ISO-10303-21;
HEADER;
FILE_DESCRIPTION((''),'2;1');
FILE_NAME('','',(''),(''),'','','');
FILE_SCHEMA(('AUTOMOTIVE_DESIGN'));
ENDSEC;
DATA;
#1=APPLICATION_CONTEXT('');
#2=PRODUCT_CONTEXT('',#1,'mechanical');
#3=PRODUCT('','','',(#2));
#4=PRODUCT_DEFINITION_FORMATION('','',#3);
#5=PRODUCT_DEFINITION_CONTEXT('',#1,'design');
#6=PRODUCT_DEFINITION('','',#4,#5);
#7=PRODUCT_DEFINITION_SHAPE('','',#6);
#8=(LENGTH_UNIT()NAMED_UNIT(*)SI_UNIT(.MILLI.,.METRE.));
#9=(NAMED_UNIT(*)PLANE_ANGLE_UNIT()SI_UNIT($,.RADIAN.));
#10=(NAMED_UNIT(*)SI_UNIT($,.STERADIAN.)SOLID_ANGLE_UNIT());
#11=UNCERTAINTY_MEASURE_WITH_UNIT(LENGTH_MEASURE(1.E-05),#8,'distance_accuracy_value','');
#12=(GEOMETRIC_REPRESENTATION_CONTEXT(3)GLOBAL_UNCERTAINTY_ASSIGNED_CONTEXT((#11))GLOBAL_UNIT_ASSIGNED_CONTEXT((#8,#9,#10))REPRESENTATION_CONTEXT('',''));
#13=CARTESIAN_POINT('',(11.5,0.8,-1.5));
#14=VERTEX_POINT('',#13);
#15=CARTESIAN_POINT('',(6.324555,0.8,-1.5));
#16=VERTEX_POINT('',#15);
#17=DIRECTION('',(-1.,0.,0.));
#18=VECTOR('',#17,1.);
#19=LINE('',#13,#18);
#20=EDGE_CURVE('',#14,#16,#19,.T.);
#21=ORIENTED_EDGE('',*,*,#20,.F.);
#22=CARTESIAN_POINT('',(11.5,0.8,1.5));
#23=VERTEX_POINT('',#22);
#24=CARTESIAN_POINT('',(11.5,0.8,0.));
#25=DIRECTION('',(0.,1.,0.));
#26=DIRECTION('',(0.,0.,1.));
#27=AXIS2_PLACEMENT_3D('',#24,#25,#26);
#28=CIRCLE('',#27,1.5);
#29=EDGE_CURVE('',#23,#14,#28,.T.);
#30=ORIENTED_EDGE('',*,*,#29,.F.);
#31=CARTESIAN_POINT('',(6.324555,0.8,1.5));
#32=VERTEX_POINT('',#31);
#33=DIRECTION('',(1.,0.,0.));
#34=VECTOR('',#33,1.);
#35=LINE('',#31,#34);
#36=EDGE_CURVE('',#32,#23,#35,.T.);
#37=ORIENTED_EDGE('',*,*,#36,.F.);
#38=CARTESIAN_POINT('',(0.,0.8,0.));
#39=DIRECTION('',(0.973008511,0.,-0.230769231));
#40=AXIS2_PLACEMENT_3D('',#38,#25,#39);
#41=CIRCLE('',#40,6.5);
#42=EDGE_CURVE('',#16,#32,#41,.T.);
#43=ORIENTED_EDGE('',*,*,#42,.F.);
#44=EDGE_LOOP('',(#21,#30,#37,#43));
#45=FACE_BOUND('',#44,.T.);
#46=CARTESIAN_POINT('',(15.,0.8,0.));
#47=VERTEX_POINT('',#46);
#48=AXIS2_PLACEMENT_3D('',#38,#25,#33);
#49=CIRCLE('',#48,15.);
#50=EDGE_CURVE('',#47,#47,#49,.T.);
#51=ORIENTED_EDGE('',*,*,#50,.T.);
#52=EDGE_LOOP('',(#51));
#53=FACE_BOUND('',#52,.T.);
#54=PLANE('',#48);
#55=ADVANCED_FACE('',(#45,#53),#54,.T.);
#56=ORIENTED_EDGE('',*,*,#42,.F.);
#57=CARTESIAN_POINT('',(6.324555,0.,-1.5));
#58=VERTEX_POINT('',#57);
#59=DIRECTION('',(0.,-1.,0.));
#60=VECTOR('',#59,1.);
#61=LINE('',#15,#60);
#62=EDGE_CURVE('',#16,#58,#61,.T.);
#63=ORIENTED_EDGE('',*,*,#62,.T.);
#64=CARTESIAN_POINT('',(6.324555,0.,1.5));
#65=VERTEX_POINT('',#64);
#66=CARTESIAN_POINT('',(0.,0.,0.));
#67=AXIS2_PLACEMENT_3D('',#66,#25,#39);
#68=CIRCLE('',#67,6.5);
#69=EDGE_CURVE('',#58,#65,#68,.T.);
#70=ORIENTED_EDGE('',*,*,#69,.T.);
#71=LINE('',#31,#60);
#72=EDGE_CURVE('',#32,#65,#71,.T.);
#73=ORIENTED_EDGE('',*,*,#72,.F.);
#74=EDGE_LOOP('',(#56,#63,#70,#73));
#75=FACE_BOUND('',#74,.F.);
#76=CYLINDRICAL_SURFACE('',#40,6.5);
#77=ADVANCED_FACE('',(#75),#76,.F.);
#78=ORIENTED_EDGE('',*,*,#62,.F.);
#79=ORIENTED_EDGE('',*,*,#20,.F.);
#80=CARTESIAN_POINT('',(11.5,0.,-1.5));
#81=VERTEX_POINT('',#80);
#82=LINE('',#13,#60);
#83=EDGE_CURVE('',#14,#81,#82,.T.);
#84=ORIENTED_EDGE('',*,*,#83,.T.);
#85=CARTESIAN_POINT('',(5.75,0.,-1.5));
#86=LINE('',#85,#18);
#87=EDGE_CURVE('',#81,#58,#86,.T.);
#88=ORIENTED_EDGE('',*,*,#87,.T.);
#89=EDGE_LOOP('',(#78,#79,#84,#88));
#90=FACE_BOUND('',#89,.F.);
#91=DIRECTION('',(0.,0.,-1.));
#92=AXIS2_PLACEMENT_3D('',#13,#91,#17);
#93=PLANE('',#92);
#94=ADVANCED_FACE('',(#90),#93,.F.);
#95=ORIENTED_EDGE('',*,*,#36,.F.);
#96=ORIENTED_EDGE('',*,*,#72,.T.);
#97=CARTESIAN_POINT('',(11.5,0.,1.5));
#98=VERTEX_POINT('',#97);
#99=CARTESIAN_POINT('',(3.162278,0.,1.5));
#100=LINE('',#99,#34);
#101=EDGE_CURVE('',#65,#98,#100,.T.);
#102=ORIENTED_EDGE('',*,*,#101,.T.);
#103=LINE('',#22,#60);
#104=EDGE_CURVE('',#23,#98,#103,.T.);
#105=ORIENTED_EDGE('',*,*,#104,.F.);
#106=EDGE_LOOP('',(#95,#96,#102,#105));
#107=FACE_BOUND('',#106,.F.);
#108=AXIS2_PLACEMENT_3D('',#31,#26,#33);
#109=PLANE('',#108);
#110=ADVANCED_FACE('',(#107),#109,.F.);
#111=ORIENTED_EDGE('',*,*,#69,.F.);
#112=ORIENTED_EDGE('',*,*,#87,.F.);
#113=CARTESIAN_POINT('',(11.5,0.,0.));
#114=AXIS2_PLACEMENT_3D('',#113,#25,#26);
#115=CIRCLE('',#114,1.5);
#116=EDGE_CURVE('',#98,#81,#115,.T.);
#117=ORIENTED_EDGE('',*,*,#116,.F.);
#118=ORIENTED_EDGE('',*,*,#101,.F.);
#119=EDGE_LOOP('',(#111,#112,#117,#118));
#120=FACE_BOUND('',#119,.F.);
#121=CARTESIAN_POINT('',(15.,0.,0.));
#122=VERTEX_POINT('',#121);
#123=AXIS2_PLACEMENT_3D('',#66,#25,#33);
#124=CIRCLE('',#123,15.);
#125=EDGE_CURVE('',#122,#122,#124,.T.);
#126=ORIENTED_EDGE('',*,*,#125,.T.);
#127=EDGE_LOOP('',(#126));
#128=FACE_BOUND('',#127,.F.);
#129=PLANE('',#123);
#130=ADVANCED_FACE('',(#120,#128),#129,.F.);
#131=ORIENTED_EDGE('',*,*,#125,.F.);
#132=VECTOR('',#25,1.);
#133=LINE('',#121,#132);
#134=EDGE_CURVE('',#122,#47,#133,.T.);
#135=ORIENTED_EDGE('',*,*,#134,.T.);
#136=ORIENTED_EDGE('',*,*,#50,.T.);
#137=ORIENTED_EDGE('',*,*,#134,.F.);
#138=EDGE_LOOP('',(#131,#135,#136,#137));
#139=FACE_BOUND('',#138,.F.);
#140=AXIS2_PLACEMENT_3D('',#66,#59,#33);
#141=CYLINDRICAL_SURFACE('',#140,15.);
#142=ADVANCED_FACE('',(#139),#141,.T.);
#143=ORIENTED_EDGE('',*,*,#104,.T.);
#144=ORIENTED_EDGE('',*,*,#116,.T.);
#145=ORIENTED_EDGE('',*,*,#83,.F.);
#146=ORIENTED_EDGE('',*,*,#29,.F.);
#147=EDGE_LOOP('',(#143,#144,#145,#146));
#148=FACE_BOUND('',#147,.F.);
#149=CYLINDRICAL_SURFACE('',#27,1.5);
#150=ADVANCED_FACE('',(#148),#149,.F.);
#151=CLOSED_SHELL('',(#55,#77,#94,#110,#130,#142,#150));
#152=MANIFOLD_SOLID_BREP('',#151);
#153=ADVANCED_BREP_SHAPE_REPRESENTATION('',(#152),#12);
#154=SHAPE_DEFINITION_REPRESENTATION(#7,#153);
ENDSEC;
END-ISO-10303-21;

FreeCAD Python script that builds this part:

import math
import FreeCAD as App
import Part
import Sketcher

doc = App.newDocument("Part")
params = doc.addObject("Spreadsheet::Sheet", "Params")
for row, (alias, value) in enumerate([
    ("sketch1_diameter", "30 mm"),
    ("pad1_length", "0.8 mm"),
    ("sketch2_radius", "1.5 mm"),
    ("sketch2_radius2", "6.5 mm"),
], start=1):
    params.set(f"A{row}", alias)
    params.set(f"B{row}", "=" + value)
    params.setAlias(f"B{row}", alias)

body = doc.addObject("PartDesign::Body", "Body")

# Sketch on XZ plane
sketch1 = doc.addObject("Sketcher::SketchObject", "Sketch")
body.addObject(sketch1)
sketch1.AttachmentSupport = (doc.XZ_Plane, [""])
sketch1.MapMode = "FlatFace"
sketch1.addGeometry(Part.Circle(App.Vector(0, 0, 0), App.Vector(0, 0, 1), 15), False)
sketch1.addConstraint([
    Sketcher.Constraint("Coincident", 0, 3, -1, 1),
    Sketcher.Constraint("Diameter", 0, 30.0),
])
sketch1.setExpression("Constraints[1]", "Params.sketch1_diameter")
pad1 = doc.addObject("PartDesign::Pad", "Pad")
body.addObject(pad1)
pad1.Profile = sketch1
pad1.setExpression("Length", "Params.pad1_length")
pad1.Reversed = True

# Sketch on XZ plane
sketch2 = doc.addObject("Sketcher::SketchObject", "Sketch001")
body.addObject(sketch2)
sketch2.AttachmentSupport = (doc.XZ_Plane, [""])
sketch2.MapMode = "FlatFace"
sketch2.AttachmentOffset = App.Placement(App.Vector(0, 0, -0.8), App.Rotation())
sketch2.addGeometry([
    Part.LineSegment(App.Vector(6.3, 1.5, 0), App.Vector(11.5, 1.5, 0)),
    Part.ArcOfCircle(Part.Circle(App.Vector(11.5, 0, 0), App.Vector(0, 0, 1), 1.5), math.radians(-90), math.radians(90)),
    Part.LineSegment(App.Vector(11.5, -1.5, 0), App.Vector(6.3, -1.5, 0)),
    Part.ArcOfCircle(Part.Circle(App.Vector(0, 0, 0), App.Vector(0, 0, 1), 6.5), math.radians(13), math.radians(347)),
], False)
sketch2.addConstraint([
    Sketcher.Constraint("Tangent", 0, 2, 1, 2),
    Sketcher.Constraint("Tangent", 1, 1, 2, 1),
    Sketcher.Constraint("Coincident", 2, 2, 3, 2),
    Sketcher.Constraint("Coincident", 3, 1, 0, 1),
    Sketcher.Constraint("Horizontal", 0),
    Sketcher.Constraint("Horizontal", 2),
    Sketcher.Constraint("Coincident", 3, 3, -1, 1),
    Sketcher.Constraint("PointOnObject", 1, 3, -1),
    Sketcher.Constraint("Radius", 1, 1.5),
    Sketcher.Constraint("Radius", 3, 6.5),
    Sketcher.Constraint("DistanceX", -1, 1, 1, 3, 11.5),
])
sketch2.setExpression("Constraints[8]", "Params.sketch2_radius")
sketch2.setExpression("Constraints[9]", "Params.sketch2_radius2")
pocket1 = doc.addObject("PartDesign::Pocket", "Pocket")
body.addObject(pocket1)
pocket1.Profile = sketch2
pocket1.Type = "ThroughAll"
pocket1.Reversed = True

doc.recompute()
